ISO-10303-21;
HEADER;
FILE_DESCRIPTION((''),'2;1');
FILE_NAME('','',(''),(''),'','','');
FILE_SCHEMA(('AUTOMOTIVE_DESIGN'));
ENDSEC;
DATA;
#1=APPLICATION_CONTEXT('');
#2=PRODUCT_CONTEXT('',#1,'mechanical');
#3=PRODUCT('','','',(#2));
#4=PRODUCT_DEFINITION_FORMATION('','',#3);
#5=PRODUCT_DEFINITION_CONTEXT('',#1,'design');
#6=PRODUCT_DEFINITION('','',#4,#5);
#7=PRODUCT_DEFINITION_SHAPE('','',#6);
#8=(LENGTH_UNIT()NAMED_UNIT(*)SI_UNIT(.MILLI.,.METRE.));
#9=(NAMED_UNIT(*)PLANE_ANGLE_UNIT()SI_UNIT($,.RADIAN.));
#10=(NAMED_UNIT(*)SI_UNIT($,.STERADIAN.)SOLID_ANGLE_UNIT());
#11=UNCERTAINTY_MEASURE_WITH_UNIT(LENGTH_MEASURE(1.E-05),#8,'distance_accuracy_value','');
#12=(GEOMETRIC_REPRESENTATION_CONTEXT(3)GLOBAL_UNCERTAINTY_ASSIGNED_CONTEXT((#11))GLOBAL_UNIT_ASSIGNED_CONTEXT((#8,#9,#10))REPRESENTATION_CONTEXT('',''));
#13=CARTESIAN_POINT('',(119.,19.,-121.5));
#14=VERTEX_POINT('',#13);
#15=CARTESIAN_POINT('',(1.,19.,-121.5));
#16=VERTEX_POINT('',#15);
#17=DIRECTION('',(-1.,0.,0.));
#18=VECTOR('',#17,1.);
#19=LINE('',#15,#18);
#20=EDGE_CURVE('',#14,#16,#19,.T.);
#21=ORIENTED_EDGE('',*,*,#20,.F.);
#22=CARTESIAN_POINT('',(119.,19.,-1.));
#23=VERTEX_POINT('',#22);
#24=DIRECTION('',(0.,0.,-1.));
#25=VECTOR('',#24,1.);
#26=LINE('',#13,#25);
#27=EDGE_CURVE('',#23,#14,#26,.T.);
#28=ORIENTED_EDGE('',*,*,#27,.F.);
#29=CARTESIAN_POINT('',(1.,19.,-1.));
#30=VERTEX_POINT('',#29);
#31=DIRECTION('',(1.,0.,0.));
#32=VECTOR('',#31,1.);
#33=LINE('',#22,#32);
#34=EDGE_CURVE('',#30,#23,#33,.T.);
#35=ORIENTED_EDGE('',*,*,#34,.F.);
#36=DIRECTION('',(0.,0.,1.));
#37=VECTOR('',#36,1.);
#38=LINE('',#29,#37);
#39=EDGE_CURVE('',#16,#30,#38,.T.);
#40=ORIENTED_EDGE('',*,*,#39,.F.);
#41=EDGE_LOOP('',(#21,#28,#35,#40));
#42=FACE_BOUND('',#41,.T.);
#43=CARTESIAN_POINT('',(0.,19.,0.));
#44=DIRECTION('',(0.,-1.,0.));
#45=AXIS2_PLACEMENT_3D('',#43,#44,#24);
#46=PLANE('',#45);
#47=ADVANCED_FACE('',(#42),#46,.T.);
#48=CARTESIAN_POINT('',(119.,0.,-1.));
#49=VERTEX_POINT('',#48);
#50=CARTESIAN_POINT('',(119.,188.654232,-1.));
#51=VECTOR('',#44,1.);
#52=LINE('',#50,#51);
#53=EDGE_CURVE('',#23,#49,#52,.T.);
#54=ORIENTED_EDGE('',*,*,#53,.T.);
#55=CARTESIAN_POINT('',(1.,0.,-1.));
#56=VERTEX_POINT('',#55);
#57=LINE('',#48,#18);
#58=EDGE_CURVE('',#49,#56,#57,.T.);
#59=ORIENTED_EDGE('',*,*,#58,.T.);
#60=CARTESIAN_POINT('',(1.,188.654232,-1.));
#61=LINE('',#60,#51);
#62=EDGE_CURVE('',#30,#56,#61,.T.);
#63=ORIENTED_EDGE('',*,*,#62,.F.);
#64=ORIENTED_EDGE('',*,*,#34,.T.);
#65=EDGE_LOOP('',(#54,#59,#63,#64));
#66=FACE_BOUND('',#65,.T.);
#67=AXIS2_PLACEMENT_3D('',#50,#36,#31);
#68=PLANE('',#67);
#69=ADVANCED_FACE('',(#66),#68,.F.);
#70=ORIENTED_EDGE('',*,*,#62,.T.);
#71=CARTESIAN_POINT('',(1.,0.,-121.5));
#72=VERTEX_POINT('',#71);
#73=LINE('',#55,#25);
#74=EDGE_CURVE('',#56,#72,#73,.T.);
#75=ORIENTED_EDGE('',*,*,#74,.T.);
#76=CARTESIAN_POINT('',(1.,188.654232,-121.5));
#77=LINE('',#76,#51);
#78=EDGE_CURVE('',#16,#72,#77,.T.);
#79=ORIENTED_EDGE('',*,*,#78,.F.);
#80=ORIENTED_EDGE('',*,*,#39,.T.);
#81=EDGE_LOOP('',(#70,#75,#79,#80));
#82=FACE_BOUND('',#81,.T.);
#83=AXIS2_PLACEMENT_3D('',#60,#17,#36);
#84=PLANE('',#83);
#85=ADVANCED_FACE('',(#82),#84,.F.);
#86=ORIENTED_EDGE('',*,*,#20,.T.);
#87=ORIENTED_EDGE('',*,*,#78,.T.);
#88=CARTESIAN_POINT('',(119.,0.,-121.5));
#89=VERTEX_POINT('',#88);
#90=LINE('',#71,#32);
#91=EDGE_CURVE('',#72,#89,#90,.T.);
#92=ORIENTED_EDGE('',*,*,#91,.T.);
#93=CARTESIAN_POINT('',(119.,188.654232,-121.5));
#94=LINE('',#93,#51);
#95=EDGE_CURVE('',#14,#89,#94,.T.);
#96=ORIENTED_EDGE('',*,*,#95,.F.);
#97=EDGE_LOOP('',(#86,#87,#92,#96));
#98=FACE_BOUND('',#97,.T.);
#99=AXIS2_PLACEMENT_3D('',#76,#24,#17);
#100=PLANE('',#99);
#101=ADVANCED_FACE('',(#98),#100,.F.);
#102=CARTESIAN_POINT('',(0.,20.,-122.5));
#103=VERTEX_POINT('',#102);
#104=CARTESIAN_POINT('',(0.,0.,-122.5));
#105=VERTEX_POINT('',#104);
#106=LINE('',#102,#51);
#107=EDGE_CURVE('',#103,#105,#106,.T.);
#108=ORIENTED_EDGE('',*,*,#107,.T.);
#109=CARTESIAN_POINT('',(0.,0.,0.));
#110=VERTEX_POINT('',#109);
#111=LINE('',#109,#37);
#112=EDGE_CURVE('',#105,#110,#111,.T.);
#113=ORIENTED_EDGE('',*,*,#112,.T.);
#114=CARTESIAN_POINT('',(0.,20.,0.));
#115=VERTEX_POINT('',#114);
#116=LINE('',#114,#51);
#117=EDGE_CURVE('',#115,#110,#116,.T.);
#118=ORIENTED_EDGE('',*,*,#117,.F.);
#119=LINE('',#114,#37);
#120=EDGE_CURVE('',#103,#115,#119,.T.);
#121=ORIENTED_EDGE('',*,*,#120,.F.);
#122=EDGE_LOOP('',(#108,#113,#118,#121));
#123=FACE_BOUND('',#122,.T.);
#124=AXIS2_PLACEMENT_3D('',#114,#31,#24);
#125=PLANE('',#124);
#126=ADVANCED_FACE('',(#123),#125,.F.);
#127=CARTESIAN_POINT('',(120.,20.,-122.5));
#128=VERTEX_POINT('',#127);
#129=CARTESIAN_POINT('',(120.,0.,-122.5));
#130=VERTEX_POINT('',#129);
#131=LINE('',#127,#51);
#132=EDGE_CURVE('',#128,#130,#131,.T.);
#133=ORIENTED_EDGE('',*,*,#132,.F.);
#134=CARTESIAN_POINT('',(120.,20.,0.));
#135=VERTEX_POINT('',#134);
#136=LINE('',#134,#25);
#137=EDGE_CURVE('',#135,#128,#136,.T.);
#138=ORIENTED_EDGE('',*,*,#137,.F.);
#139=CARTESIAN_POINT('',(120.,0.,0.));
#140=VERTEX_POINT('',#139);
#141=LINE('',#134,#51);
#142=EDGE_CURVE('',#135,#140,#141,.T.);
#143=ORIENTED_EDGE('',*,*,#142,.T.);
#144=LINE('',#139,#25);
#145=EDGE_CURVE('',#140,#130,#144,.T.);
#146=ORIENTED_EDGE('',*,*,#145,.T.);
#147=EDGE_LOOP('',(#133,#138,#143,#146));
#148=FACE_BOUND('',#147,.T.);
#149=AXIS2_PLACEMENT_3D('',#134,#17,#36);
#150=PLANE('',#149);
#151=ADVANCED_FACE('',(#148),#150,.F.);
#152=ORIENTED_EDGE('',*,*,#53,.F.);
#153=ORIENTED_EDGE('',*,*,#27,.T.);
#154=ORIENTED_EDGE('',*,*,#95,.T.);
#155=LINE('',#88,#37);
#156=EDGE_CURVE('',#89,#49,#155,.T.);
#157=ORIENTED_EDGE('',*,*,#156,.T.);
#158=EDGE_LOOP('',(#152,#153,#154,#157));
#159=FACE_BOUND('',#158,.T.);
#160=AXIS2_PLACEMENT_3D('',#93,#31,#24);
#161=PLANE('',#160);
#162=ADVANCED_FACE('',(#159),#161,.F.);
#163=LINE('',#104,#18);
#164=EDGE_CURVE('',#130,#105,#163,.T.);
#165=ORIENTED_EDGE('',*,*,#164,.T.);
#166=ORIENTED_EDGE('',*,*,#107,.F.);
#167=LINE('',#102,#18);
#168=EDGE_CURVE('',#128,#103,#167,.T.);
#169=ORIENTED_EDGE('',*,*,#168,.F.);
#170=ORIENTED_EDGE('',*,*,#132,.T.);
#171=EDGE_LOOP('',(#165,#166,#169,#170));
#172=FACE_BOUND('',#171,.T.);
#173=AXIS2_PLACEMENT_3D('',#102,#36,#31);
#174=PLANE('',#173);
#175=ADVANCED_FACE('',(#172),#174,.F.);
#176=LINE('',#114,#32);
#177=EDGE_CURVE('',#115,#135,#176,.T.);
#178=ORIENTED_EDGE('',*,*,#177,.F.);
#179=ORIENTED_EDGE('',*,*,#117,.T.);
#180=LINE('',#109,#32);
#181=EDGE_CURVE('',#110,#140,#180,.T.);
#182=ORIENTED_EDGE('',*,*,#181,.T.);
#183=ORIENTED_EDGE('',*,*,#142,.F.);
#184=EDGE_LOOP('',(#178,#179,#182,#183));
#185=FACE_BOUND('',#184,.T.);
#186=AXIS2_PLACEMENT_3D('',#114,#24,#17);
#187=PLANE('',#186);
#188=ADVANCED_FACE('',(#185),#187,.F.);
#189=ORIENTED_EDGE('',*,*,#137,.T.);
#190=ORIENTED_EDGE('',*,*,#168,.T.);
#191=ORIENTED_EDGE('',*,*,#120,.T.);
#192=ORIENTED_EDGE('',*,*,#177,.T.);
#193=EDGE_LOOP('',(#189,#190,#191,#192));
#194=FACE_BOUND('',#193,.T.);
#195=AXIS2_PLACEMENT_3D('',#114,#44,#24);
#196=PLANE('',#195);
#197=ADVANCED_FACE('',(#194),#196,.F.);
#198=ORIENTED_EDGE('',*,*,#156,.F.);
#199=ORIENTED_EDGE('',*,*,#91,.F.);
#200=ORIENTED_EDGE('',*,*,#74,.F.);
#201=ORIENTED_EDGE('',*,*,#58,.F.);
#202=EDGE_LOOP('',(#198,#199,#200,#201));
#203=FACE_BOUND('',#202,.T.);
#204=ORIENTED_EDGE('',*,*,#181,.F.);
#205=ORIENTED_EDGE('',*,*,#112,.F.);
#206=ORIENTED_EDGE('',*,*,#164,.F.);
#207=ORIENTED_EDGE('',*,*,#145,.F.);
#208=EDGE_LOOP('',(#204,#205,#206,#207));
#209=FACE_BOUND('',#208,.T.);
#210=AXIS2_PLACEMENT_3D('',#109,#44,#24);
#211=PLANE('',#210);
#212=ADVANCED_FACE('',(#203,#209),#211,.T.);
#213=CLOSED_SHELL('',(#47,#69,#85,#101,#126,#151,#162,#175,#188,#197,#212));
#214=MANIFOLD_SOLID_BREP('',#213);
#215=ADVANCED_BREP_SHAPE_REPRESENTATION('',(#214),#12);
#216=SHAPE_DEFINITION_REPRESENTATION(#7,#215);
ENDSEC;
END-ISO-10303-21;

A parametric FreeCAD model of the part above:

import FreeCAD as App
import Part
import Sketcher
from FreeCAD import Vector


def add_polygon(sketch, points):
    """Adds a closed chain of lines whose ends are joined by coincident constraints."""
    first, n = sketch.GeometryCount, len(points)
    for a, b in zip(points, points[1:] + points[:1]):
        sketch.addGeometry(Part.LineSegment(App.Vector(*a, 0), App.Vector(*b, 0)), False)
    for i in range(n):
        sketch.addConstraint(Sketcher.Constraint("Coincident", first + i, 2, first + (i + 1) % n, 1))

doc = App.newDocument("Part")
body = doc.addObject("PartDesign::Body", "Body")

sketch1 = body.newObject("Sketcher::SketchObject", "Sketch")
sketch1.AttachmentSupport = (doc.getObject("XZ_Plane"), [""])
sketch1.MapMode = "FlatFace"
add_polygon(sketch1, [(0, -122.5), (0, 0), (120, 0), (120, -122.5)])
sketch1.addConstraint([
    Sketcher.Constraint("Vertical", 0),
    Sketcher.Constraint("Horizontal", 1),
    Sketcher.Constraint("Vertical", 2),
    Sketcher.Constraint("Horizontal", 3),
    Sketcher.Constraint("Coincident", 0, 2, -1, 1),
    Sketcher.Constraint("DistanceX", 1, 1, 1, 2, 120.0),
    Sketcher.Constraint("DistanceY", 0, 1, 0, 2, 122.5),
])
pad1 = body.newObject("PartDesign::Pad", "Pad")
pad1.Profile = sketch1
pad1.Length = 20
pad1.Reversed = True

sketch2 = body.newObject("Sketcher::SketchObject", "Sketch001")
sketch2.AttachmentSupport = (doc.getObject("XZ_Plane"), [""])
sketch2.MapMode = "FlatFace"
add_polygon(sketch2, [(1, -1), (1, -121.5), (119, -121.5), (119, -1)])
sketch2.addConstraint([
    Sketcher.Constraint("Vertical", 0),
    Sketcher.Constraint("Horizontal", 1),
    Sketcher.Constraint("Vertical", 2),
    Sketcher.Constraint("Horizontal", 3),
    Sketcher.Constraint("DistanceX", 1, 1, 1, 2, 118.0),
    Sketcher.Constraint("DistanceY", 0, 2, 0, 1, 120.5),
    Sketcher.Constraint("DistanceX", -1, 1, 0, 2, 1.0),
    Sketcher.Constraint("DistanceY", 2, 2, -1, 1, 1.0),
])
pocket1 = body.newObject("PartDesign::Pocket", "Pocket")
pocket1.Profile = sketch2
pocket1.Length = 19

doc.recompute()
